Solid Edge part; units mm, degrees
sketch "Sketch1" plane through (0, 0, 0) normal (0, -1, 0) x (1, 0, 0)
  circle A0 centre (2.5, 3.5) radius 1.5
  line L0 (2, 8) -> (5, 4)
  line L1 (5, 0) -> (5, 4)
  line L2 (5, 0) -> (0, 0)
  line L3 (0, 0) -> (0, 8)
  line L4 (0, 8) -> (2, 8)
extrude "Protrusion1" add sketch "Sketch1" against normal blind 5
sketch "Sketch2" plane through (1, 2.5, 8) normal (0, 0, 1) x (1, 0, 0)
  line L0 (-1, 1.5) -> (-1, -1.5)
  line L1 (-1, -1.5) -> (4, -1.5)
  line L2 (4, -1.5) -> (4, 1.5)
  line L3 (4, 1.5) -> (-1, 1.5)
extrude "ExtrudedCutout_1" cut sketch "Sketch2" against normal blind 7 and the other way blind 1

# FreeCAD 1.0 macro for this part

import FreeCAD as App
import Part
import Sketcher

V = App.Vector
Q = App.Units.Quantity

doc = App.newDocument("Part")
params = doc.addObject("Spreadsheet::Sheet", "Params")
for row, (alias, value) in enumerate([
    ("sketch1_diameter", "3 mm"),
    ("sketch1_width", "2 mm"),
    ("sketch1_width2", "5 mm"),
    ("sketch1_height", "8 mm"),
    ("sketch1_height2", "4 mm"),
    ("pad1_length", "5 mm"),
    ("sketch2_width", "5 mm"),
    ("sketch2_height", "3 mm"),
    ("pocket1_length", "7 mm"),
    ("pocket1_length2", "1 mm"),
], start=1):
    params.set(f"A{row}", alias)
    params.set(f"B{row}", "=" + value)
    params.setAlias(f"B{row}", alias)

body = doc.addObject("PartDesign::Body", "Body")

sketch1 = body.newObject("Sketcher::SketchObject", "Sketch")
sketch1.AttachmentSupport = (doc.getObject("XZ_Plane"), [""])
sketch1.MapMode = "FlatFace"
sketch1.addGeometry([
    Part.LineSegment(V(5, 4, 0), V(2, 8, 0)),
    Part.LineSegment(V(2, 8, 0), V(0, 8, 0)),
    Part.LineSegment(V(0, 8, 0), V(0, 0, 0)),
    Part.LineSegment(V(0, 0, 0), V(5, 0, 0)),
    Part.LineSegment(V(5, 0, 0), V(5, 4, 0)),
    Part.Circle(V(2.5, 3.5, 0), V(0, 0, 1), 1.5),
], False)
sketch1.addConstraint([
    Sketcher.Constraint("Coincident", 0, 2, 1, 1),
    Sketcher.Constraint("Coincident", 1, 2, 2, 1),
    Sketcher.Constraint("Coincident", 2, 2, 3, 1),
    Sketcher.Constraint("Coincident", 3, 2, 4, 1),
    Sketcher.Constraint("Coincident", 4, 2, 0, 1),
    Sketcher.Constraint("Horizontal", 1),
    Sketcher.Constraint("Vertical", 2),
    Sketcher.Constraint("Horizontal", 3),
    Sketcher.Constraint("Vertical", 4),
    Sketcher.Constraint("Coincident", 2, 2, -1, 1),
    Sketcher.Constraint("Diameter", 5, Q("3 mm")),
    Sketcher.Constraint("DistanceX", 1, 2, 1, 1, Q("2 mm")),
    Sketcher.Constraint("DistanceX", 3, 1, 3, 2, Q("5 mm")),
    Sketcher.Constraint("DistanceY", 2, 2, 2, 1, Q("8 mm")),
    Sketcher.Constraint("DistanceY", 4, 1, 4, 2, Q("4 mm")),
    Sketcher.Constraint("DistanceX", -1, 1, 5, 3, Q("2.5 mm")),
    Sketcher.Constraint("DistanceY", -1, 1, 5, 3, Q("3.5 mm")),
])
sketch1.setExpression("Constraints[10]", "Params.sketch1_diameter")
sketch1.setExpression("Constraints[11]", "Params.sketch1_width")
sketch1.setExpression("Constraints[12]", "Params.sketch1_width2")
sketch1.setExpression("Constraints[13]", "Params.sketch1_height")
sketch1.setExpression("Constraints[14]", "Params.sketch1_height2")
pad1 = body.newObject("PartDesign::Pad", "Pad")
pad1.Profile = sketch1
pad1.setExpression("Length", "Params.pad1_length")
pad1.Reversed = True

sketch2 = body.newObject("Sketcher::SketchObject", "Sketch001")
sketch2.AttachmentSupport = (doc.getObject("XY_Plane"), [""])
sketch2.MapMode = "FlatFace"
sketch2.AttachmentOffset = App.Placement(V(0, 0, 8), App.Rotation())
sketch2.addGeometry([
    Part.LineSegment(V(5, 4, 0), V(0, 4, 0)),
    Part.LineSegment(V(0, 4, 0), V(0, 1, 0)),
    Part.LineSegment(V(0, 1, 0), V(5, 1, 0)),
    Part.LineSegment(V(5, 1, 0), V(5, 4, 0)),
], False)
sketch2.addConstraint([
    Sketcher.Constraint("Coincident", 0, 2, 1, 1),
    Sketcher.Constraint("Coincident", 1, 2, 2, 1),
    Sketcher.Constraint("Coincident", 2, 2, 3, 1),
    Sketcher.Constraint("Coincident", 3, 2, 0, 1),
    Sketcher.Constraint("Horizontal", 0),
    Sketcher.Constraint("Vertical", 1),
    Sketcher.Constraint("Horizontal", 2),
    Sketcher.Constraint("Vertical", 3),
    Sketcher.Constraint("PointOnObject", 0, 2, -2),
    Sketcher.Constraint("DistanceX", 0, 2, 0, 1, Q("5 mm")),
    Sketcher.Constraint("DistanceY", 1, 2, 1, 1, Q("3 mm")),
    Sketcher.Constraint("DistanceY", -1, 1, 0, 2, Q("4 mm")),
])
sketch2.setExpression("Constraints[9]", "Params.sketch2_width")
sketch2.setExpression("Constraints[10]", "Params.sketch2_height")
pocket1 = body.newObject("PartDesign::Pocket", "Pocket")
pocket1.Profile = sketch2
pocket1.Type = "TwoLengths"
pocket1.setExpression("Length", "Params.pocket1_length")
pocket1.setExpression("Length2", "Params.pocket1_length2")

doc.recompute()
